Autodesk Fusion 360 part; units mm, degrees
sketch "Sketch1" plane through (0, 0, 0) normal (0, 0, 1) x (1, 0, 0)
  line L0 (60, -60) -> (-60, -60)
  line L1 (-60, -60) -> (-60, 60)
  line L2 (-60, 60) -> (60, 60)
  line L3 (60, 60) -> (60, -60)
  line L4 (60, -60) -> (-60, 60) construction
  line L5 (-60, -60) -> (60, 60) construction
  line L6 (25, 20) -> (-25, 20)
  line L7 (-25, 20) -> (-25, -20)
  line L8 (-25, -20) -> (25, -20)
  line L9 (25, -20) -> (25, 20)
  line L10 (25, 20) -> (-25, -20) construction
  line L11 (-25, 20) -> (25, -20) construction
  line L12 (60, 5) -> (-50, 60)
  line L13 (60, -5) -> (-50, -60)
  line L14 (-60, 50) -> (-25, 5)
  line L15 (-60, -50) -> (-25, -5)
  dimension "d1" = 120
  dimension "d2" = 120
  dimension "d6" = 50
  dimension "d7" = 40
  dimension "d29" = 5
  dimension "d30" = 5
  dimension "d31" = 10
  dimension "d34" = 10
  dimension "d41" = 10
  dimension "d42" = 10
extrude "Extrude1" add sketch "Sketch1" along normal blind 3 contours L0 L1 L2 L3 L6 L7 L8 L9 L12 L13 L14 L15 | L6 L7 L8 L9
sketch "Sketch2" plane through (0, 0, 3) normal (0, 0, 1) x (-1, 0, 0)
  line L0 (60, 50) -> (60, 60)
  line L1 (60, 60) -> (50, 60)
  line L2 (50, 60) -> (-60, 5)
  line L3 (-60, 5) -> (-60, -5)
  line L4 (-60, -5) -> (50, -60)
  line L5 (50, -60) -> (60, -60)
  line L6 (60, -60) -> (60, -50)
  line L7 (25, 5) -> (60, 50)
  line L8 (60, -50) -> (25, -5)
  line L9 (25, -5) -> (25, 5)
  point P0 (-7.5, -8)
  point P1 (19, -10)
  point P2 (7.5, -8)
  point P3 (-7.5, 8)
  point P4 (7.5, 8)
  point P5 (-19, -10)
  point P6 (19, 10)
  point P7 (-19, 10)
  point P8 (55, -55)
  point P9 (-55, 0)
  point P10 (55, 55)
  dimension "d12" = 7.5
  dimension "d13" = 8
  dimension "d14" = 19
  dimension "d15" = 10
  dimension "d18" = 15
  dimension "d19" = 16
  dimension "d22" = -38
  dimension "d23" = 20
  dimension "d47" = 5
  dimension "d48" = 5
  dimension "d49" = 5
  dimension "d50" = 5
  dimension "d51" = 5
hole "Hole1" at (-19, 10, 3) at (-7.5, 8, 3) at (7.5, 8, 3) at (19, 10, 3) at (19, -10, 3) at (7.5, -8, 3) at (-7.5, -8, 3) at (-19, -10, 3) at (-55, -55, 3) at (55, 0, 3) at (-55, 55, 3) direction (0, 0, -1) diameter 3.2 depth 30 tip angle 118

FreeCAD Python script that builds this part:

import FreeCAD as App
import Part
import Sketcher
Q = App.Units.Quantity


def add_polygon(sketch, points):
    """Adds a closed chain of lines whose ends are joined by coincident constraints."""
    first, n = sketch.GeometryCount, len(points)
    for a, b in zip(points, points[1:] + points[:1]):
        sketch.addGeometry(Part.LineSegment(App.Vector(*a, 0), App.Vector(*b, 0)), False)
    for i in range(n):
        sketch.addConstraint(Sketcher.Constraint("Coincident", first + i, 2, first + (i + 1) % n, 1))

doc = App.newDocument("Part")
params = doc.addObject("Spreadsheet::Sheet", "Params")
for row, (alias, value) in enumerate([
    ("sketch1_width", "10 mm"),
    ("pad1_length", "3 mm"),
    ("sketch2_diameter", "3.2 mm"),
    ("hole_diameter", "3.2 mm"),
    ("hole_depth", "30 mm"),
], start=1):
    params.set(f"A{row}", alias)
    params.set(f"B{row}", "=" + value)
    params.setAlias(f"B{row}", alias)

body = doc.addObject("PartDesign::Body", "Body")

sketch1 = body.newObject("Sketcher::SketchObject", "Sketch")
sketch1.AttachmentSupport = (doc.getObject("XY_Plane"), [""])
sketch1.MapMode = "FlatFace"
add_polygon(sketch1, [(-60, -60), (-50, -60), (60, -5), (60, 5), (-50, 60), (-60, 60), (-60, 50), (-25, 5), (-25, -5), (-60, -50)])
sketch1.addConstraint([
    Sketcher.Constraint("Horizontal", 0),
    Sketcher.Constraint("Vertical", 2),
    Sketcher.Constraint("Horizontal", 4),
    Sketcher.Constraint("Vertical", 5),
    Sketcher.Constraint("Vertical", 7),
    Sketcher.Constraint("Vertical", 9),
    Sketcher.Constraint("Symmetric", 0, 2, 3, 2, -1),
    Sketcher.Constraint("Symmetric", 5, 2, 8, 2, -1),
    Sketcher.Constraint("Horizontal", 2, 2, 6, 2),
    Sketcher.Constraint("Horizontal", 1, 2, 7, 2),
    Sketcher.Constraint("Equal", 4, 2),
    Sketcher.Constraint("Equal", 2, 5),
    Sketcher.Constraint("Equal", 1, 3),
    Sketcher.Constraint("DistanceX", 0, 1, 0, 2, Q("10 mm")),
    Sketcher.Constraint("DistanceX", 0, 2, -1, 1, Q("50 mm")),
    Sketcher.Constraint("DistanceY", -1, 1, 5, 2, Q("50 mm")),
    Sketcher.Constraint("DistanceX", 4, 2, 2, 2, Q("120 mm")),
    Sketcher.Constraint("DistanceX", 6, 2, -1, 1, Q("25 mm")),
])
sketch1.setExpression("Constraints[23]", "Params.sketch1_width")
pad1 = body.newObject("PartDesign::Pad", "Pad")
pad1.Profile = sketch1
pad1.setExpression("Length", "Params.pad1_length")

sketch2 = body.newObject("Sketcher::SketchObject", "Sketch001")
sketch2.AttachmentSupport = (doc.getObject("XY_Plane"), [""])
sketch2.MapMode = "FlatFace"
sketch2.AttachmentOffset = App.Placement(App.Vector(0, 0, 3), App.Rotation())
sketch2.addGeometry([
    Part.Circle(App.Vector(-19, 10, 0), App.Vector(0, 0, 1), 1.6),
    Part.Circle(App.Vector(-7.5, 8, 0), App.Vector(0, 0, 1), 1.6),
    Part.Circle(App.Vector(7.5, 8, 0), App.Vector(0, 0, 1), 1.6),
    Part.Circle(App.Vector(19, 10, 0), App.Vector(0, 0, 1), 1.6),
    Part.Circle(App.Vector(19, -10, 0), App.Vector(0, 0, 1), 1.6),
    Part.Circle(App.Vector(7.5, -8, 0), App.Vector(0, 0, 1), 1.6),
    Part.Circle(App.Vector(-7.5, -8, 0), App.Vector(0, 0, 1), 1.6),
    Part.Circle(App.Vector(-19, -10, 0), App.Vector(0, 0, 1), 1.6),
    Part.Circle(App.Vector(-55, -55, 0), App.Vector(0, 0, 1), 1.6),
    Part.Circle(App.Vector(55, 0, 0), App.Vector(0, 0, 1), 1.6),
    Part.Circle(App.Vector(-55, 55, 0), App.Vector(0, 0, 1), 1.6),
], False)
sketch2.addConstraint([
    Sketcher.Constraint("Equal", 0, 1),
    Sketcher.Constraint("Equal", 1, 2),
    Sketcher.Constraint("Equal", 2, 3),
    Sketcher.Constraint("Equal", 3, 4),
    Sketcher.Constraint("Equal", 4, 5),
    Sketcher.Constraint("Equal", 5, 6),
    Sketcher.Constraint("Equal", 6, 7),
    Sketcher.Constraint("Equal", 7, 8),
    Sketcher.Constraint("Equal", 8, 9),
    Sketcher.Constraint("Equal", 9, 10),
    Sketcher.Constraint("Symmetric", 0, 3, 4, 3, -1, 1),
    Sketcher.Constraint("Symmetric", 1, 3, 5, 3, -1, 1),
    Sketcher.Constraint("Symmetric", 2, 3, 6, 3, -1, 1),
    Sketcher.Constraint("Symmetric", 3, 3, 7, 3, -1, 1),
    Sketcher.Constraint("Symmetric", 1, 3, 2, 3, -2),
    Sketcher.Constraint("Symmetric", 0, 3, 3, 3, -2),
    Sketcher.Constraint("Symmetric", 8, 3, 10, 3, -1),
    Sketcher.Constraint("PointOnObject", 9, 3, -1),
    Sketcher.Constraint("Diameter", 0, Q("3.2 mm")),
    Sketcher.Constraint("DistanceX", 0, 3, -1, 1, Q("19 mm")),
    Sketcher.Constraint("DistanceY", -1, 1, 0, 3, Q("10 mm")),
    Sketcher.Constraint("DistanceY", -1, 1, 1, 3, Q("8 mm")),
    Sketcher.Constraint("DistanceX", 8, 3, -1, 1, Q("55 mm")),
    Sketcher.Constraint("DistanceY", 8, 3, -1, 1, Q("55 mm")),
    Sketcher.Constraint("DistanceX", -1, 1, 9, 3, Q("55 mm")),
    Sketcher.Constraint("DistanceX", 1, 3, 2, 3, Q("15 mm")),
])
sketch2.setExpression("Constraints[18]", "Params.sketch2_diameter")
doc.recompute()
hole = body.newObject("PartDesign::Hole", "Hole")
hole.Profile = sketch2
hole.ThreadType = "None"
hole.setExpression("Diameter", "Params.hole_diameter")
hole.DepthType = "Dimension"
hole.setExpression("Depth", "Params.hole_depth")
hole.DrillPoint = "Angled"
hole.DrillPointAngle = 118

doc.recompute()
